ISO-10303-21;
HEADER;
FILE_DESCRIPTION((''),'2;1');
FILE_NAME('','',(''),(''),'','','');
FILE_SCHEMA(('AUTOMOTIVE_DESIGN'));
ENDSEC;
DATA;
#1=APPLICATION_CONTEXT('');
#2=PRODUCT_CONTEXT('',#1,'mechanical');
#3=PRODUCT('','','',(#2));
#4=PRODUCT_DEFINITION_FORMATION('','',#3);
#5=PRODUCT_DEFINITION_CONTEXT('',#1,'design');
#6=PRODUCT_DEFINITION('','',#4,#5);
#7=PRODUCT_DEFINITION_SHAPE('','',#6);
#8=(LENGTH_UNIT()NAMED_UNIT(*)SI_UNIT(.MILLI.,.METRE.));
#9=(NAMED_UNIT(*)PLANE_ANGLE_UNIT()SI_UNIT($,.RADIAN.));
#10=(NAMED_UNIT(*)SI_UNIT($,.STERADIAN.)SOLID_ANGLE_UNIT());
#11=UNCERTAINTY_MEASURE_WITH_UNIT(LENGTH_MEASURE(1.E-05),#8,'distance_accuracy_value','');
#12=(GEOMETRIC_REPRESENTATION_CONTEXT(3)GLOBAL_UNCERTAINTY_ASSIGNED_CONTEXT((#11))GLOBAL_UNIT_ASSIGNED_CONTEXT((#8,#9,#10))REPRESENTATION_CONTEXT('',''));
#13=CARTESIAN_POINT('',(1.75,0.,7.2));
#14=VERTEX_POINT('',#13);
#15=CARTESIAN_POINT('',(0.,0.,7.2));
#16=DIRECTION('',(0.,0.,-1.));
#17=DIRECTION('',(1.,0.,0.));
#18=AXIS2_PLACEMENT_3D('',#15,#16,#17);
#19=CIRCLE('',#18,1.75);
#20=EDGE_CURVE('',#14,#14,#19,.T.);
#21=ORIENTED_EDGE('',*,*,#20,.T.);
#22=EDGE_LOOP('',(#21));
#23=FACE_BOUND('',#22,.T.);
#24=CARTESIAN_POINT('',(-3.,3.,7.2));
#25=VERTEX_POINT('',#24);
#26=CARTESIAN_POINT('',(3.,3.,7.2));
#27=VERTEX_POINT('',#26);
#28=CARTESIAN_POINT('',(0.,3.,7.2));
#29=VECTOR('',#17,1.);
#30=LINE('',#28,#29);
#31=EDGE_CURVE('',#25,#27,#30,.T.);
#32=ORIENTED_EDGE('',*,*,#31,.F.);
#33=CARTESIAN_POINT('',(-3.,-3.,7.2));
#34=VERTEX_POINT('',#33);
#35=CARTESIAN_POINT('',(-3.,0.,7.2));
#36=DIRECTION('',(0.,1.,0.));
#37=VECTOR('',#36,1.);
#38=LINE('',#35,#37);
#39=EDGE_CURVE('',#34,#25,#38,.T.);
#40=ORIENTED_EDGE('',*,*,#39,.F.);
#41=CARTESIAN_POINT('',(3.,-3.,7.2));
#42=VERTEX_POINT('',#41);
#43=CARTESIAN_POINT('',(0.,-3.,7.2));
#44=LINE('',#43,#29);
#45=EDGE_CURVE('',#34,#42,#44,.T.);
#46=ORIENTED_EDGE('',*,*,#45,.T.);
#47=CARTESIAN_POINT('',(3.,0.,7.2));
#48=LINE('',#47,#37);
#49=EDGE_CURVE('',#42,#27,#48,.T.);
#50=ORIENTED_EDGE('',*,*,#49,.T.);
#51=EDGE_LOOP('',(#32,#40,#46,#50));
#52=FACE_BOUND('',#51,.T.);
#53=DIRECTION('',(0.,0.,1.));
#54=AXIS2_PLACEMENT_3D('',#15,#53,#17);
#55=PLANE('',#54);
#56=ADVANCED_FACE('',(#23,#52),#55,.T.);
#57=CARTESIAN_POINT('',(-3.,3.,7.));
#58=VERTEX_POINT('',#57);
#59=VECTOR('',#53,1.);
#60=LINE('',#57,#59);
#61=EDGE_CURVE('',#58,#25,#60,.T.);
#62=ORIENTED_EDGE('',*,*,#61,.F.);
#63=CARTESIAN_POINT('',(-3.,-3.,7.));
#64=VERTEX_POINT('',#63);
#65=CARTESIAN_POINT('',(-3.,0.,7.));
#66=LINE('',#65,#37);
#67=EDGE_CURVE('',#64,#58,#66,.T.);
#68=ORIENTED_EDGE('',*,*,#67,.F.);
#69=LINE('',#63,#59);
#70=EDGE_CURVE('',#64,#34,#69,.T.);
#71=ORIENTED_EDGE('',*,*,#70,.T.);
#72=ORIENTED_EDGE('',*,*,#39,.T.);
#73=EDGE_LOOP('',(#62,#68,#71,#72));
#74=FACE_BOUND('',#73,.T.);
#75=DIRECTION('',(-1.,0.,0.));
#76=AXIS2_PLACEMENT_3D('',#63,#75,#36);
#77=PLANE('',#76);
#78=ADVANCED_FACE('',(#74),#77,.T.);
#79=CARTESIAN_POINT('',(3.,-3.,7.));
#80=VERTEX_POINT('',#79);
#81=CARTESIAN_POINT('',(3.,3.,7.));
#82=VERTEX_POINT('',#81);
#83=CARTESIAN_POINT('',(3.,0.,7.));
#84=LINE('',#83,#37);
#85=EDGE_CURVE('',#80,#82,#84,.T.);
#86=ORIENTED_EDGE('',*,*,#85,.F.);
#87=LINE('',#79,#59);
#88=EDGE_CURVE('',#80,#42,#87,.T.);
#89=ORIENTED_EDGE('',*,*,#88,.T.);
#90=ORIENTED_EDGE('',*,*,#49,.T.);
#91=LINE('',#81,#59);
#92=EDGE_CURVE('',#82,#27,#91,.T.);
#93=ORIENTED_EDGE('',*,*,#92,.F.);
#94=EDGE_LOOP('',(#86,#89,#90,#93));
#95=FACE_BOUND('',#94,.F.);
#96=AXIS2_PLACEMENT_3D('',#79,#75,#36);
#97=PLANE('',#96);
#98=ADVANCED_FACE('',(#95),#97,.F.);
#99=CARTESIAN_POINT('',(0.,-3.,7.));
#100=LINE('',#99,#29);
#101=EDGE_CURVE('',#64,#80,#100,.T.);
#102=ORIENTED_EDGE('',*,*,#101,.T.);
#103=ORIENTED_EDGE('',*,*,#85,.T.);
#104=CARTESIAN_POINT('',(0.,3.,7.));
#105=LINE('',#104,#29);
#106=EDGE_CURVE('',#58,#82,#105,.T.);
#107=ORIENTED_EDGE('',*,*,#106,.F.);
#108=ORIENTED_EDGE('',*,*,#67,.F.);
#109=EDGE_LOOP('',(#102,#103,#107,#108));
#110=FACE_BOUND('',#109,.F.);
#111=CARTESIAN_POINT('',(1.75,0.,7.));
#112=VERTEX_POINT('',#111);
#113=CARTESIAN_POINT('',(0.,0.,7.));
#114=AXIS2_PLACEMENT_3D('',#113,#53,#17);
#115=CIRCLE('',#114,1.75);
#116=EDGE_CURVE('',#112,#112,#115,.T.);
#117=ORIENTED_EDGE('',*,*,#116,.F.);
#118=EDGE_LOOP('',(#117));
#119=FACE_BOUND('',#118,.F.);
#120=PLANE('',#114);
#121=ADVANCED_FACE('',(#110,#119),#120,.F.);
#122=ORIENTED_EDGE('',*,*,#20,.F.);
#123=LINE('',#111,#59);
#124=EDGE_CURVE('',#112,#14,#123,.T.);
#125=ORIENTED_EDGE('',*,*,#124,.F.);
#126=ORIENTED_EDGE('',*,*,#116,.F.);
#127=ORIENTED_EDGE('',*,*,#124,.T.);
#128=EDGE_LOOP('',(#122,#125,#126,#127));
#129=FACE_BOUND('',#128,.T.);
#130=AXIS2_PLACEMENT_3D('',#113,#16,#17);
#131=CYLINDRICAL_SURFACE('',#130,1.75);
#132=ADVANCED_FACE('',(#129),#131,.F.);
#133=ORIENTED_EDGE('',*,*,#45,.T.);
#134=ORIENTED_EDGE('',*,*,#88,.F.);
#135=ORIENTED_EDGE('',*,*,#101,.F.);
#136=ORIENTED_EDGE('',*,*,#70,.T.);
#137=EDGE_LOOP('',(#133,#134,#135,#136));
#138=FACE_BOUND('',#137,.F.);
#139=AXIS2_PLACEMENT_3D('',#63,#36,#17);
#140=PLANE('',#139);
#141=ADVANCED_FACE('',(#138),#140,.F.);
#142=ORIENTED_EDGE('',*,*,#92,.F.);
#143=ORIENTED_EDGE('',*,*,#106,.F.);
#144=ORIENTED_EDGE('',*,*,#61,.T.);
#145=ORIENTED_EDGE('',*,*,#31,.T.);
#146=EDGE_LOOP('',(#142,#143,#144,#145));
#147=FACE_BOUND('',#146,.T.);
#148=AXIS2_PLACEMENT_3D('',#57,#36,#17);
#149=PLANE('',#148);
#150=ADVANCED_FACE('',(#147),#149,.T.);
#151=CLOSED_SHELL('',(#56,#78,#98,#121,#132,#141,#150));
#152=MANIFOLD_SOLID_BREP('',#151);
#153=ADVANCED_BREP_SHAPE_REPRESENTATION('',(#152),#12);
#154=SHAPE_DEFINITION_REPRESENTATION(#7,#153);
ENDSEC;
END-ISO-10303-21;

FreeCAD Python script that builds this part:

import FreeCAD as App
import Part
import Sketcher


def add_polygon(sketch, points):
    """Adds a closed chain of lines whose ends are joined by coincident constraints."""
    first, n = sketch.GeometryCount, len(points)
    for a, b in zip(points, points[1:] + points[:1]):
        sketch.addGeometry(Part.LineSegment(App.Vector(*a, 0), App.Vector(*b, 0)), False)
    for i in range(n):
        sketch.addConstraint(Sketcher.Constraint("Coincident", first + i, 2, first + (i + 1) % n, 1))

doc = App.newDocument("Part")
body = doc.addObject("PartDesign::Body", "Body")

# Sketch on XY plane
sketch1 = body.newObject("Sketcher::SketchObject", "Sketch")
sketch1.AttachmentSupport = (doc.getObject("XY_Plane"), [""])
sketch1.MapMode = "FlatFace"
sketch1.addGeometry(Part.Circle(App.Vector(0, 0, 0), App.Vector(0, 0, 1), 1.75), False)
sketch1.addConstraint(Sketcher.Constraint("Coincident", 0, 3, -1, 1))
sketch1.addConstraint(Sketcher.Constraint("Diameter", 0, 3.5))
pad1 = body.newObject("PartDesign::Pad", "Pad")
pad1.Profile = sketch1
pad1.Length = 2
body2 = doc.addObject("PartDesign::Body", "Body001")
doc.recompute()

body.Placement = App.Placement(App.Vector(0, 0, 7), App.Rotation(App.Vector(0, 0, 1), 0))
boolean = body2.newObject("PartDesign::Boolean", "Boolean")
boolean.Type = "Fuse"
boolean.addObjects([body])
body3 = doc.addObject("PartDesign::Body", "Body002")

# Sketch on XY plane
sketch2 = body3.newObject("Sketcher::SketchObject", "Sketch001")
sketch2.AttachmentSupport = (doc.getObject("XY_Plane002"), [""])
sketch2.MapMode = "FlatFace"
add_polygon(sketch2, [(-3, 3), (-3, -3), (3, -3), (3, 3)])  # lines 0-3
sketch2.addConstraint(Sketcher.Constraint("Vertical", 0))
sketch2.addConstraint(Sketcher.Constraint("Horizontal", 1))
sketch2.addConstraint(Sketcher.Constraint("Vertical", 2))
sketch2.addConstraint(Sketcher.Constraint("Horizontal", 3))
sketch2.addConstraint(Sketcher.Constraint("Symmetric", 0, 2, 2, 2, -1, 1))
sketch2.addConstraint(Sketcher.Constraint("Equal", 3, 0))
sketch2.addConstraint(Sketcher.Constraint("DistanceX", 1, 1, 1, 2, 6.0))
pad2 = body3.newObject("PartDesign::Pad", "Pad001")
pad2.Profile = sketch2
pad2.Length = 0.2
body4 = doc.addObject("PartDesign::Body", "Body003")
doc.recompute()

body3.Placement = App.Placement(App.Vector(0, 0, 7), App.Rotation(App.Vector(0, 0, 1), 0))
boolean2 = body4.newObject("PartDesign::Boolean", "Boolean001")
boolean2.Type = "Fuse"
boolean2.addObjects([body3])
doc.recompute()

boolean3 = body4.newObject("PartDesign::Boolean", "Boolean002")
boolean3.Type = "Cut"
boolean3.addObjects([body2])

doc.recompute()
